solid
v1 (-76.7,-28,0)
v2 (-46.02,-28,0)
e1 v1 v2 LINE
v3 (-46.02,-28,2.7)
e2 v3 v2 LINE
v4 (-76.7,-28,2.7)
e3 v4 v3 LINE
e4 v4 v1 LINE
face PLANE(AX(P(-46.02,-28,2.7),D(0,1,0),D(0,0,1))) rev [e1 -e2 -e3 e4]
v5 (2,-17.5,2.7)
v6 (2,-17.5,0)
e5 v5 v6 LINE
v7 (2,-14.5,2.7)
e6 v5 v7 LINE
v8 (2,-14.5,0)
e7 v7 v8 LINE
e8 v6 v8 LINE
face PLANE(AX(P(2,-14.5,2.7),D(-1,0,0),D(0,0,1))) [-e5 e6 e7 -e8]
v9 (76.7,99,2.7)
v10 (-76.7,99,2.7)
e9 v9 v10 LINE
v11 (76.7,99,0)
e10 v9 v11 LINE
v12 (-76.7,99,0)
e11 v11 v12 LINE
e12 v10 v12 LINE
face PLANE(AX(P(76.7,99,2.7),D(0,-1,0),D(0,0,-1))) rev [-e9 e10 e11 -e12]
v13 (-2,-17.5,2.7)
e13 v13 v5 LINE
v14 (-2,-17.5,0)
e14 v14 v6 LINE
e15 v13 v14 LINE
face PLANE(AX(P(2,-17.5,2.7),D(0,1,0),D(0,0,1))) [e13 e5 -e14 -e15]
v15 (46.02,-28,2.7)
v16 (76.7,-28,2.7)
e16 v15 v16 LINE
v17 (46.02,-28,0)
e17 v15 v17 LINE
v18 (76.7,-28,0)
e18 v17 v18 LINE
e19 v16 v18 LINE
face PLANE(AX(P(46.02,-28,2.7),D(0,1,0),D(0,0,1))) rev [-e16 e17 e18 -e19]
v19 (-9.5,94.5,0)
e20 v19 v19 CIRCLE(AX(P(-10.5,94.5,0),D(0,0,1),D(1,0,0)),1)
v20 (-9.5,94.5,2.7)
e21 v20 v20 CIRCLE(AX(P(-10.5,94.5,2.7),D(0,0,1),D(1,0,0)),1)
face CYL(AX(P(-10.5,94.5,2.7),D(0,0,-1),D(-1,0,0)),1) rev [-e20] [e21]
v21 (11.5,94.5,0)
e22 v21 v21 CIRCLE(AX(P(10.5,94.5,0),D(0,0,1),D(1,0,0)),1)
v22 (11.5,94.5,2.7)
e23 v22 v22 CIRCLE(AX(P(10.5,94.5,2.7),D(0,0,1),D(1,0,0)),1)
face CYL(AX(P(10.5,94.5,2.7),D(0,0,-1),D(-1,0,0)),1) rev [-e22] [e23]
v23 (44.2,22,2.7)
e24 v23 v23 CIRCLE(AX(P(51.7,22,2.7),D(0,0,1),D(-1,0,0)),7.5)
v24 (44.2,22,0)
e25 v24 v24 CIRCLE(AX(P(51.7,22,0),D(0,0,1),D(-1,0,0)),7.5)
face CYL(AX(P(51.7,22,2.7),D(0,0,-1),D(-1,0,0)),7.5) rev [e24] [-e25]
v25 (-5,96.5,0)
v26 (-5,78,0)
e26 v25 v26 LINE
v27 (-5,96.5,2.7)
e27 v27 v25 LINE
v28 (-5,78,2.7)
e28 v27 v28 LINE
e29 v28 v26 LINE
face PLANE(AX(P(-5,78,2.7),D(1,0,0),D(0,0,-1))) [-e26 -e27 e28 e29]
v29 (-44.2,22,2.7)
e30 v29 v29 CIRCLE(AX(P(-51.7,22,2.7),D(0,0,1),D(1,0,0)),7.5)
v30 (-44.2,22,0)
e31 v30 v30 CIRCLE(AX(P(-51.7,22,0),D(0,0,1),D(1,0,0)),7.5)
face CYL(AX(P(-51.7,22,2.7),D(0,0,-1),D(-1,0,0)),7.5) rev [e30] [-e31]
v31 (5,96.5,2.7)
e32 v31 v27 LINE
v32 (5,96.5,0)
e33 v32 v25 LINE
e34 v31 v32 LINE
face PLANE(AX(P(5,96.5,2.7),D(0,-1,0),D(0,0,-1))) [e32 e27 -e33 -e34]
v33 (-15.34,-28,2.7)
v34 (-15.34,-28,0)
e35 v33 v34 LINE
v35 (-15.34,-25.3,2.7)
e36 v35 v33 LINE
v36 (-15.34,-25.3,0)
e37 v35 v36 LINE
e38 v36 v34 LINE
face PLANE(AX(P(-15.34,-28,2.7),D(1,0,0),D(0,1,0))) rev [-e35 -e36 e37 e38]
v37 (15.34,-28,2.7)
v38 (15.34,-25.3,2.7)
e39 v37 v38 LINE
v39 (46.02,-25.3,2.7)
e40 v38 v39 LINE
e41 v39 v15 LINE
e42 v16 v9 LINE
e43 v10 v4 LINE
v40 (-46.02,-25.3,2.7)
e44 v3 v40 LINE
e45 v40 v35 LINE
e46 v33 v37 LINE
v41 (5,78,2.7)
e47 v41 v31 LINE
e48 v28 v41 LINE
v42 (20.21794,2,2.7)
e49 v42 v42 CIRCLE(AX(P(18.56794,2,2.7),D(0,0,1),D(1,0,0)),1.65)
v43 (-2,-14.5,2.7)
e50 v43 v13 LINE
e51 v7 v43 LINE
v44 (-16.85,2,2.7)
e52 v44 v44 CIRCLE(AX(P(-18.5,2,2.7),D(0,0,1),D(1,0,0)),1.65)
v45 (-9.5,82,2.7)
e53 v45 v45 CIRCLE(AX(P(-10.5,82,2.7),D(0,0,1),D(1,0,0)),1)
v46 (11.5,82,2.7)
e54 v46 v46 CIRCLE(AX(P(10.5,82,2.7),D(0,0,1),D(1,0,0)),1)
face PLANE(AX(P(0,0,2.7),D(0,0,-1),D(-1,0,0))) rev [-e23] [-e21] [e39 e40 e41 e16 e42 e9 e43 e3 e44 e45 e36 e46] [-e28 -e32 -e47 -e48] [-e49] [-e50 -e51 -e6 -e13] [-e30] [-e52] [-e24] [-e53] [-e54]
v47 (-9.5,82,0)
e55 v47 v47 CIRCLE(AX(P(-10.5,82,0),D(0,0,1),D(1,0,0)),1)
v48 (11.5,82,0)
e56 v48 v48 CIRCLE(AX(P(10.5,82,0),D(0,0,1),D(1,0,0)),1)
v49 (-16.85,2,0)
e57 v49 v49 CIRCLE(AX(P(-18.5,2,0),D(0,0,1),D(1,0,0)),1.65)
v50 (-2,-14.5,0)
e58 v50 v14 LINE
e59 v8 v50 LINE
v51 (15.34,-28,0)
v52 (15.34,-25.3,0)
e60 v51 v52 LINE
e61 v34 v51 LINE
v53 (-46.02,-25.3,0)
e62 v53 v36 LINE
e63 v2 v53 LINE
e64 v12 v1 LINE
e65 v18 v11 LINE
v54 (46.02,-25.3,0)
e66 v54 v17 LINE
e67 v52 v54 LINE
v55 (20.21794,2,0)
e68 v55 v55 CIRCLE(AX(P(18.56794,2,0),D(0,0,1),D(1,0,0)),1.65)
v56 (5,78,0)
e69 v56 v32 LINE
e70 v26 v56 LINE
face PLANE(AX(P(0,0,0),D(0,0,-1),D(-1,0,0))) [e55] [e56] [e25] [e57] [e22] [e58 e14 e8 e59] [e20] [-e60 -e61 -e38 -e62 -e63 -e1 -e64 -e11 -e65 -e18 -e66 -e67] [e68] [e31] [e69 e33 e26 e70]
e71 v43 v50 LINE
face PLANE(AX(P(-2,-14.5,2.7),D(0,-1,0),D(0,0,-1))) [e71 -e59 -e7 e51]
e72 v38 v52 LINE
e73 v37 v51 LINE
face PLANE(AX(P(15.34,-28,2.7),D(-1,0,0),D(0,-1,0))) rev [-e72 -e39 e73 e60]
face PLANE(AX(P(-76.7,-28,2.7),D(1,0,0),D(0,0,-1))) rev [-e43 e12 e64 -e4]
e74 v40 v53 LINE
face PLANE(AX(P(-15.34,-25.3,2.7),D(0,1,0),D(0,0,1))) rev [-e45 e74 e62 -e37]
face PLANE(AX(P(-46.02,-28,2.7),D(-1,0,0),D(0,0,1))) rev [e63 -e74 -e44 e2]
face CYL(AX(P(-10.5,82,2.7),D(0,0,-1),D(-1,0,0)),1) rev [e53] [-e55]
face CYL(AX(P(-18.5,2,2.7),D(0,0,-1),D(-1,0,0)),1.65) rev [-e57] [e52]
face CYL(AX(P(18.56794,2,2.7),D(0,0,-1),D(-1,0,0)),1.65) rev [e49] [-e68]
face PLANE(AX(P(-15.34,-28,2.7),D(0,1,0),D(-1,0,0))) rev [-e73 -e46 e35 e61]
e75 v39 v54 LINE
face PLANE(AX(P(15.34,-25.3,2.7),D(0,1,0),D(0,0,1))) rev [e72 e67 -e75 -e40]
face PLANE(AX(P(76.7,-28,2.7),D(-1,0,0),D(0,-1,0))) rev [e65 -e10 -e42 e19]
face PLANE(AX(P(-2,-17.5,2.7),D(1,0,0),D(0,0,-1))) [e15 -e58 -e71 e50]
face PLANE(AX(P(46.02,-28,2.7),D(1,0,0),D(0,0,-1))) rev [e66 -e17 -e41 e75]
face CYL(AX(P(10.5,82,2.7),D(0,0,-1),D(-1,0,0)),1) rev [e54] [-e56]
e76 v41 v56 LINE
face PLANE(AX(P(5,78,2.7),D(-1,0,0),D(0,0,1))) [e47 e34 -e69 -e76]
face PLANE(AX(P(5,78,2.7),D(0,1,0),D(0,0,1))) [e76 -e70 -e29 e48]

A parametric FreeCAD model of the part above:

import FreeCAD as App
import Part
import Sketcher

V = App.Vector
Q = App.Units.Quantity


def add_polygon(sketch, points):
    """Adds a closed chain of lines whose ends are joined by coincident constraints."""
    first, n = sketch.GeometryCount, len(points)
    for a, b in zip(points, points[1:] + points[:1]):
        sketch.addGeometry(Part.LineSegment(App.Vector(*a, 0), App.Vector(*b, 0)), False)
    for i in range(n):
        sketch.addConstraint(Sketcher.Constraint("Coincident", first + i, 2, first + (i + 1) % n, 1))

doc = App.newDocument("Part")
params = doc.addObject("Spreadsheet::Sheet", "Params")
for row, (alias, value) in enumerate([
    ("sketch1_diameter", "15 mm"),
    ("sketch1_diameter2", "2 mm"),
    ("sketch1_diameter3", "3.3 mm"),
    ("sketch1_width", "4 mm"),
    ("sketch1_width2", "10 mm"),
    ("pad1_length", "2.7 mm"),
], start=1):
    params.set(f"A{row}", alias)
    params.set(f"B{row}", "=" + value)
    params.setAlias(f"B{row}", alias)

body = doc.addObject("PartDesign::Body", "Body")

# Sketch on XY plane
sketch1 = doc.addObject("Sketcher::SketchObject", "Sketch")
body.addObject(sketch1)
sketch1.AttachmentSupport = (doc.XY_Plane, [""])
sketch1.MapMode = "FlatFace"
add_polygon(sketch1, [(-46, -28), (-46, -25.3), (-15.3, -25.3), (-15.3, -28), (15.3, -28), (15.3, -25.3), (46, -25.3), (46, -28), (76.7, -28), (76.7, 99), (-76.7, 99), (-76.7, -28)])  # lines 0-11
add_polygon(sketch1, [(2, -17.5), (-2, -17.5), (-2, -14.5), (2, -14.5)])  # lines 12-15
sketch1.addGeometry(Part.Circle(V(-18.5, 2, 0), V(0, 0, 1), 1.6), False)  # 16
sketch1.addGeometry(Part.Circle(V(-51.7, 22, 0), V(0, 0, 1), 7.5), False)  # 17
sketch1.addGeometry(Part.Circle(V(18.6, 2, 0), V(0, 0, 1), 1.6), False)  # 18
sketch1.addGeometry(Part.Circle(V(51.7, 22, 0), V(0, 0, 1), 7.5), False)  # 19
sketch1.addGeometry(Part.Circle(V(-10.5, 82, 0), V(0, 0, 1), 1), False)  # 20
add_polygon(sketch1, [(5, 78), (-5, 78), (-5, 96.5), (5, 96.5)])  # lines 21-24
sketch1.addGeometry(Part.Circle(V(-10.5, 94.5, 0), V(0, 0, 1), 1), False)  # 25
sketch1.addGeometry(Part.Circle(V(10.5, 82, 0), V(0, 0, 1), 1), False)  # 26
sketch1.addGeometry(Part.Circle(V(10.5, 94.5, 0), V(0, 0, 1), 1), False)  # 27
sketch1.addConstraint([
    Sketcher.Constraint("Vertical", 0),
    Sketcher.Constraint("Horizontal", 1),
    Sketcher.Constraint("Vertical", 2),
    Sketcher.Constraint("Horizontal", 3),
    Sketcher.Constraint("Vertical", 4),
    Sketcher.Constraint("Horizontal", 5),
    Sketcher.Constraint("Vertical", 6),
    Sketcher.Constraint("Horizontal", 7),
    Sketcher.Constraint("Vertical", 8),
    Sketcher.Constraint("Horizontal", 9),
    Sketcher.Constraint("Vertical", 10),
    Sketcher.Constraint("Horizontal", 11),
    Sketcher.Constraint("Horizontal", 12),
    Sketcher.Constraint("Vertical", 13),
    Sketcher.Constraint("Horizontal", 14),
    Sketcher.Constraint("Vertical", 15),
    Sketcher.Constraint("Horizontal", 21),
    Sketcher.Constraint("Vertical", 22),
    Sketcher.Constraint("Horizontal", 23),
    Sketcher.Constraint("Vertical", 24),
    Sketcher.Constraint("Equal", 16, 18),
    Sketcher.Constraint("Equal", 17, 19),
    Sketcher.Constraint("Equal", 20, 25),
    Sketcher.Constraint("Equal", 25, 26),
    Sketcher.Constraint("Equal", 26, 27),
    Sketcher.Constraint("Symmetric", 17, 3, 19, 3, -2),
    Sketcher.Constraint("Symmetric", 20, 3, 26, 3, -2),
    Sketcher.Constraint("Symmetric", 25, 3, 27, 3, -2),
    Sketcher.Constraint("Symmetric", 1, 2, 4, 2, -2),
    Sketcher.Constraint("Symmetric", 7, 2, 10, 2, -2),
    Sketcher.Constraint("Horizontal", 16, 3, 18, 3),
    Sketcher.Constraint("Horizontal", 3, 2, 6, 2),
    Sketcher.Constraint("Vertical", 20, 3, 25, 3),
    Sketcher.Constraint("Equal", 1, 3),
    Sketcher.Constraint("Equal", 3, 5),
    Sketcher.Constraint("Equal", 5, 7),
    Sketcher.Constraint("Diameter", 17, Q("15 mm")),
    Sketcher.Constraint("Diameter", 20, Q("2 mm")),
    Sketcher.Constraint("Diameter", 16, Q("3.3 mm")),
    Sketcher.Constraint("DistanceX", 12, 2, 12, 1, Q("4 mm")),
    Sketcher.Constraint("DistanceX", 21, 2, 21, 1, Q("10 mm")),
    Sketcher.Constraint("DistanceY", 8, 1, 8, 2, Q("127 mm")),
    Sketcher.Constraint("DistanceY", 13, 1, 13, 2, Q("3 mm")),
    Sketcher.Constraint("DistanceX", 9, 2, 9, 1, Q("153.4 mm")),
    Sketcher.Constraint("DistanceY", 0, 1, 0, 2, Q("2.7 mm")),
    Sketcher.Constraint("DistanceY", 22, 1, 22, 2, Q("18.5 mm")),
    Sketcher.Constraint("DistanceY", -1, 1, 16, 3, Q("2 mm")),
    Sketcher.Constraint("DistanceY", -1, 1, 17, 3, Q("22 mm")),
    Sketcher.Constraint("DistanceY", -1, 1, 20, 3, Q("82 mm")),
    Sketcher.Constraint("DistanceY", 2, 2, -1, 1, Q("28 mm")),
    Sketcher.Constraint("DistanceX", 12, 2, -1, 1, Q("2 mm")),
    Sketcher.Constraint("DistanceX", 21, 2, -1, 1, Q("5 mm")),
    Sketcher.Constraint("DistanceY", -1, 1, 21, 2, Q("78 mm")),
    Sketcher.Constraint("DistanceX", 16, 3, 20, 3, Q("8 mm")),
    Sketcher.Constraint("DistanceX", 20, 3, 26, 3, Q("21 mm")),
    Sketcher.Constraint("DistanceX", 19, 3, 7, 2, Q("25 mm")),
    Sketcher.Constraint("DistanceY", 25, 3, 22, 2, Q("2 mm")),
    Sketcher.Constraint("DistanceY", 12, 2, -1, 1, Q("17.5 mm")),
    Sketcher.Constraint("DistanceX", -1, 1, 18, 3, Q("18.56794 mm")),
])
sketch1.setExpression("Constraints[56]", "Params.sketch1_diameter")
sketch1.setExpression("Constraints[57]", "Params.sketch1_diameter2")
sketch1.setExpression("Constraints[58]", "Params.sketch1_diameter3")
sketch1.setExpression("Constraints[59]", "Params.sketch1_width")
sketch1.setExpression("Constraints[60]", "Params.sketch1_width2")
pad1 = doc.addObject("PartDesign::Pad", "Pad")
body.addObject(pad1)
pad1.Profile = sketch1
pad1.setExpression("Length", "Params.pad1_length")

doc.recompute()
